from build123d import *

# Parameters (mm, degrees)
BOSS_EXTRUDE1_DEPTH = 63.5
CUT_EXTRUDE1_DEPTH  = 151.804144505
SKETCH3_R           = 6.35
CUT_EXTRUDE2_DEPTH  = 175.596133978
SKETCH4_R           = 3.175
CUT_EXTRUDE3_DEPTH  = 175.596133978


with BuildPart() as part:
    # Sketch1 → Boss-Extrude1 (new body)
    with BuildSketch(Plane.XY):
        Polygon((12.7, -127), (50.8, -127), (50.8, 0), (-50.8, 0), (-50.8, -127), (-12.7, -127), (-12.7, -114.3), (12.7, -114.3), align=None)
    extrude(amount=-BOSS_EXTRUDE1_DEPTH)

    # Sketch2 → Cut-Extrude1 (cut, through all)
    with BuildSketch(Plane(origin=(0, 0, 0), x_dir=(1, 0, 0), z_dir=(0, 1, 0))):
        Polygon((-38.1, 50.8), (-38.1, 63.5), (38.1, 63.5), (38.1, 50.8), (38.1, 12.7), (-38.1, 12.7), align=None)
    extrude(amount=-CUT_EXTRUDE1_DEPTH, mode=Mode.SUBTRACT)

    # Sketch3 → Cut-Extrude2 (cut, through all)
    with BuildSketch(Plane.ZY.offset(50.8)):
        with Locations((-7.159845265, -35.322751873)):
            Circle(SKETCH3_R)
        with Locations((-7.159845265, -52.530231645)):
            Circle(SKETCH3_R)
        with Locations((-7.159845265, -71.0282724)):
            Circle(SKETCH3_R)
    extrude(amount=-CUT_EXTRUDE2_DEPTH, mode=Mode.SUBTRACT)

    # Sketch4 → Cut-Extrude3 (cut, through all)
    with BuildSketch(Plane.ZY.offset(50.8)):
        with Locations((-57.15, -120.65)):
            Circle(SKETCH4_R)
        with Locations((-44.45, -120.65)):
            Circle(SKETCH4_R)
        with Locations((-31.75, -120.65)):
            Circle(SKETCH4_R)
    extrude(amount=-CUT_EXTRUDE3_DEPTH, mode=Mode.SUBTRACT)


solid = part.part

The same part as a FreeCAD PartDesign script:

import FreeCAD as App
import Part
import Sketcher
from FreeCAD import Vector
Q = App.Units.Quantity


def add_polygon(sketch, points):
    """Adds a closed chain of lines whose ends are joined by coincident constraints."""
    first, n = sketch.GeometryCount, len(points)
    for a, b in zip(points, points[1:] + points[:1]):
        sketch.addGeometry(Part.LineSegment(App.Vector(*a, 0), App.Vector(*b, 0)), False)
    for i in range(n):
        sketch.addConstraint(Sketcher.Constraint("Coincident", first + i, 2, first + (i + 1) % n, 1))

doc = App.newDocument("Part")
body = doc.addObject("PartDesign::Body", "Body")

# Sketch on XY plane
sketch1 = body.newObject("Sketcher::SketchObject", "Sketch")
sketch1.AttachmentSupport = (doc.getObject("XY_Plane"), [""])
sketch1.MapMode = "FlatFace"
add_polygon(sketch1, [(13, -127), (51, -127), (51, 0), (-51, 0), (-51, -127), (-13, -127), (-13, -114), (13, -114)])  # lines 0-7
sketch1.addConstraint(Sketcher.Constraint("Horizontal", 0))
sketch1.addConstraint(Sketcher.Constraint("Vertical", 1))
sketch1.addConstraint(Sketcher.Constraint("Horizontal", 2))
sketch1.addConstraint(Sketcher.Constraint("Vertical", 3))
sketch1.addConstraint(Sketcher.Constraint("Horizontal", 4))
sketch1.addConstraint(Sketcher.Constraint("Vertical", 5))
sketch1.addConstraint(Sketcher.Constraint("Horizontal", 6))
sketch1.addConstraint(Sketcher.Constraint("Vertical", 7))
sketch1.addConstraint(Sketcher.Constraint("Symmetric", 1, 2, 2, 2, -1, 1))
sketch1.addConstraint(Sketcher.Constraint("Symmetric", 4, 2, 7, 2, -2))
sketch1.addConstraint(Sketcher.Constraint("DistanceX", 2, 2, 2, 1, Q("4 in")))
sketch1.addConstraint(Sketcher.Constraint("DistanceX", 6, 1, 6, 2, Q("1 in")))
sketch1.addConstraint(Sketcher.Constraint("DistanceY", 1, 1, 1, 2, Q("5 in")))
sketch1.addConstraint(Sketcher.Constraint("DistanceY", 5, 1, 5, 2, Q("0.5 in")))
pad1 = body.newObject("PartDesign::Pad", "Pad")
pad1.Profile = sketch1
pad1.Length = Q("2.5 in")
pad1.Reversed = True

# Sketch on XZ plane
sketch2 = body.newObject("Sketcher::SketchObject", "Sketch001")
sketch2.AttachmentSupport = (doc.getObject("XZ_Plane"), [""])
sketch2.MapMode = "FlatFace"
add_polygon(sketch2, [(-38, -64), (-38, -13), (38, -13), (38, -64)])  # lines 0-3
sketch2.addConstraint(Sketcher.Constraint("Vertical", 0))
sketch2.addConstraint(Sketcher.Constraint("Horizontal", 1))
sketch2.addConstraint(Sketcher.Constraint("Vertical", 2))
sketch2.addConstraint(Sketcher.Constraint("Horizontal", 3))
sketch2.addConstraint(Sketcher.Constraint("DistanceX", 1, 1, 1, 2, Q("3 in")))
sketch2.addConstraint(Sketcher.Constraint("DistanceY", 0, 1, 0, 2, Q("2 in")))
sketch2.addConstraint(Sketcher.Constraint("DistanceX", 0, 2, -1, 1, Q("1.5 in")))
sketch2.addConstraint(Sketcher.Constraint("DistanceY", 0, 2, -1, 1, Q("0.5 in")))
pocket1 = body.newObject("PartDesign::Pocket", "Pocket")
pocket1.Profile = sketch2
pocket1.Type = "ThroughAll"
pocket1.Reversed = True

# Sketch on YZ plane
sketch3 = body.newObject("Sketcher::SketchObject", "Sketch002")
sketch3.AttachmentSupport = (doc.getObject("YZ_Plane"), [""])
sketch3.MapMode = "FlatFace"
sketch3.AttachmentOffset = App.Placement(Vector(0, 0, -2 * 25.4), App.Rotation())
sketch3.addGeometry(Part.Circle(Vector(-35, -7, 0), Vector(0, 0, 1), 6), False)
sketch3.addGeometry(Part.Circle(Vector(-53, -7, 0), Vector(0, 0, 1), 6), False)
sketch3.addGeometry(Part.Circle(Vector(-71, -7, 0), Vector(0, 0, 1), 6), False)
sketch3.addConstraint(Sketcher.Constraint("Equal", 0, 1))
sketch3.addConstraint(Sketcher.Constraint("Equal", 1, 2))
sketch3.addConstraint(Sketcher.Constraint("Horizontal", 0, 3, 1, 3))
sketch3.addConstraint(Sketcher.Constraint("Horizontal", 1, 3, 2, 3))
sketch3.addConstraint(Sketcher.Constraint("Diameter", 0, Q("0.5 in")))
sketch3.addConstraint(Sketcher.Constraint("DistanceX", 0, 3, -1, 1, Q("35.322752 mm")))
sketch3.addConstraint(Sketcher.Constraint("DistanceX", 1, 3, -1, 1, Q("52.530232 mm")))
sketch3.addConstraint(Sketcher.Constraint("DistanceX", 2, 3, 1, 3, Q("18.498041 mm")))
sketch3.addConstraint(Sketcher.Constraint("DistanceY", 0, 3, -1, 1, Q("7.159845 mm")))
pocket2 = body.newObject("PartDesign::Pocket", "Pocket001")
pocket2.Profile = sketch3
pocket2.Type = "ThroughAll"
pocket2.Reversed = True

# Sketch on YZ plane
sketch4 = body.newObject("Sketcher::SketchObject", "Sketch003")
sketch4.AttachmentSupport = (doc.getObject("YZ_Plane"), [""])
sketch4.MapMode = "FlatFace"
sketch4.AttachmentOffset = App.Placement(Vector(0, 0, -2 * 25.4), App.Rotation())
sketch4.addGeometry(Part.Circle(Vector(-120.7, -57.1, 0), Vector(0, 0, 1), 3.2), False)
sketch4.addGeometry(Part.Circle(Vector(-120.7, -44.5, 0), Vector(0, 0, 1), 3.2), False)
sketch4.addGeometry(Part.Circle(Vector(-120.7, -31.8, 0), Vector(0, 0, 1), 3.2), False)
sketch4.addConstraint(Sketcher.Constraint("Equal", 0, 1))
sketch4.addConstraint(Sketcher.Constraint("Equal", 1, 2))
sketch4.addConstraint(Sketcher.Constraint("Vertical", 0, 3, 1, 3))
sketch4.addConstraint(Sketcher.Constraint("Vertical", 1, 3, 2, 3))
sketch4.addConstraint(Sketcher.Constraint("Diameter", 0, Q("0.25 in")))
sketch4.addConstraint(Sketcher.Constraint("DistanceY", 0, 3, 2, 3, Q("1 in")))
sketch4.addConstraint(Sketcher.Constraint("DistanceY", 0, 3, 1, 3, Q("0.5 in")))
sketch4.addConstraint(Sketcher.Constraint("DistanceX", 0, 3, -1, 1, Q("4.75 in")))
sketch4.addConstraint(Sketcher.Constraint("DistanceY", 0, 3, -1, 1, Q("2.25 in")))
pocket3 = body.newObject("PartDesign::Pocket", "Pocket002")
pocket3.Profile = sketch4
pocket3.Type = "ThroughAll"
pocket3.Reversed = True

doc.recompute()
